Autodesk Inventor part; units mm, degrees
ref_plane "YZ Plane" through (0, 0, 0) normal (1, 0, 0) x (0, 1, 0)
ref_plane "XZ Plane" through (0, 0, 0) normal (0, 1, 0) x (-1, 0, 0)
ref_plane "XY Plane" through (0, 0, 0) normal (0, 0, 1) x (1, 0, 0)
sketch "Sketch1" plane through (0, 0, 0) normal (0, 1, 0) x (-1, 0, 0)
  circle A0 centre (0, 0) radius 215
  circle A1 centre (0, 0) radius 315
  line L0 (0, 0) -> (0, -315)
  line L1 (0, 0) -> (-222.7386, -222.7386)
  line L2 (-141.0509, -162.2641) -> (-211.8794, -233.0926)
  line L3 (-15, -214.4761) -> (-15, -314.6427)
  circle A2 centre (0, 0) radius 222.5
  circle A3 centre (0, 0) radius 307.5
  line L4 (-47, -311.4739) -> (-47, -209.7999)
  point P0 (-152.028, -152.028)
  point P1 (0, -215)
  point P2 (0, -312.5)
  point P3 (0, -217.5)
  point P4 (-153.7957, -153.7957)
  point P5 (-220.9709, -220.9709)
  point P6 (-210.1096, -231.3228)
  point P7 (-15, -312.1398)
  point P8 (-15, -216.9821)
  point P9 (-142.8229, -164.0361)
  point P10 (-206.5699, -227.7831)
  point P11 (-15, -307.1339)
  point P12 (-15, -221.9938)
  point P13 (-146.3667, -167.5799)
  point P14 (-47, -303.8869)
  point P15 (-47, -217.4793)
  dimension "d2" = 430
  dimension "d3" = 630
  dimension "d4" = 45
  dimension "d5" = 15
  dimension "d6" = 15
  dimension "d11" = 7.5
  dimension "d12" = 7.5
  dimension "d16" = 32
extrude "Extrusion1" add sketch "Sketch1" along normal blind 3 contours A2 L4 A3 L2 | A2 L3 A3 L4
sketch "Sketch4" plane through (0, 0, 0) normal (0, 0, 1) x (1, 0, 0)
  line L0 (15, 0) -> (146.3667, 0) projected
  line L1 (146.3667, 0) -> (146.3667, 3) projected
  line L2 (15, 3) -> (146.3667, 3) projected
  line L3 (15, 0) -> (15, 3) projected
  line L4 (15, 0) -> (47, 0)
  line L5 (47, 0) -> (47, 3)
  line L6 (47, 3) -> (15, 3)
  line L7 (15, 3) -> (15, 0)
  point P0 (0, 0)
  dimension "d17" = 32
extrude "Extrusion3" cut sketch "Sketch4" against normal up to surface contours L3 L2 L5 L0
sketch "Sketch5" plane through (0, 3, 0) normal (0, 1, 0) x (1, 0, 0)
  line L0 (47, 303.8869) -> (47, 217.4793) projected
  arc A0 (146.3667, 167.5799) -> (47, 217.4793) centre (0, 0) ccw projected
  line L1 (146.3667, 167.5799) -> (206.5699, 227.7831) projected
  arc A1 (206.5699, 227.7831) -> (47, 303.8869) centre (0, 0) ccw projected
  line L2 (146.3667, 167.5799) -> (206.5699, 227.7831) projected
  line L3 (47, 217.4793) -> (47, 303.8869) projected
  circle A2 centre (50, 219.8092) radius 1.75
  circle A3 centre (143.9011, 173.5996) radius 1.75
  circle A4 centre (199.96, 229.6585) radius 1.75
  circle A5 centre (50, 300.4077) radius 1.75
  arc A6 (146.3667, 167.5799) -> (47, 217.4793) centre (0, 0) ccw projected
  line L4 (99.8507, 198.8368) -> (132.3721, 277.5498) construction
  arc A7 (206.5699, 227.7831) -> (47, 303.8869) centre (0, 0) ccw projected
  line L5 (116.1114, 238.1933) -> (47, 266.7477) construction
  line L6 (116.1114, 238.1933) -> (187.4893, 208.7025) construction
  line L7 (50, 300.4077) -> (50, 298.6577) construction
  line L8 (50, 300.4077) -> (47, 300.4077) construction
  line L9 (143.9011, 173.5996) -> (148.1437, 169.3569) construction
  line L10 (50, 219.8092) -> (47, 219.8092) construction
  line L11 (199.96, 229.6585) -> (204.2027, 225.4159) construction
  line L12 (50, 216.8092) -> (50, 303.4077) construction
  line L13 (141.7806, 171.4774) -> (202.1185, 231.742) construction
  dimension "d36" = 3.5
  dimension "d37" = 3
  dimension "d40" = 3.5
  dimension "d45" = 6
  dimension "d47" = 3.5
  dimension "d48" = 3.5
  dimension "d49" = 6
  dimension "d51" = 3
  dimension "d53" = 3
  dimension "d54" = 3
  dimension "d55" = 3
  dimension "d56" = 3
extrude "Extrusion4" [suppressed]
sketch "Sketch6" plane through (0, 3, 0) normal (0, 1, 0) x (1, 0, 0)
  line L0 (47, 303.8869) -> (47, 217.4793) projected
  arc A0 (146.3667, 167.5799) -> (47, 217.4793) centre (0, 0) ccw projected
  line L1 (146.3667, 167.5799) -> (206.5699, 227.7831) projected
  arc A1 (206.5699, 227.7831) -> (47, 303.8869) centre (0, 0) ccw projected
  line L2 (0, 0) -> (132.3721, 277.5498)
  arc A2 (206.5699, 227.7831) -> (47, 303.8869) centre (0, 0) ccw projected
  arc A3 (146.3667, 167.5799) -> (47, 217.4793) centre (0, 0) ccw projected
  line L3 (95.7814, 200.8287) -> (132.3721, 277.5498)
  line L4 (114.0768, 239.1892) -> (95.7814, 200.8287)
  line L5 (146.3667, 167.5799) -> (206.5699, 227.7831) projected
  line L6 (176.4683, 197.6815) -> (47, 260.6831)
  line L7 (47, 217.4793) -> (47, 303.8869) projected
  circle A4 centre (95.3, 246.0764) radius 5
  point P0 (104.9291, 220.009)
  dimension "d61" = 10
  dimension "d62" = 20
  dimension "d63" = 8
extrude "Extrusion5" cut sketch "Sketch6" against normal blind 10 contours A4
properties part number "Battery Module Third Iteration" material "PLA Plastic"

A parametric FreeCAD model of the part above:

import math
import FreeCAD as App
import Part
import Sketcher

V = App.Vector
Q = App.Units.Quantity


def add_polygon(sketch, points):
    """Adds a closed chain of lines whose ends are joined by coincident constraints."""
    first, n = sketch.GeometryCount, len(points)
    for a, b in zip(points, points[1:] + points[:1]):
        sketch.addGeometry(Part.LineSegment(App.Vector(*a, 0), App.Vector(*b, 0)), False)
    for i in range(n):
        sketch.addConstraint(Sketcher.Constraint("Coincident", first + i, 2, first + (i + 1) % n, 1))

doc = App.newDocument("Part")
body = doc.addObject("PartDesign::Body", "Body")

sketch1 = body.newObject("Sketcher::SketchObject", "Sketch")
sketch1.AttachmentSupport = (doc.getObject("XZ_Plane"), [""])
sketch1.MapMode = "FlatFace"
sketch1.addGeometry(Part.LineSegment(V(146, -168, 0), V(207, -228, 0)), False)
sketch1.addGeometry(Part.ArcOfCircle(Part.Circle(V(0, 0, 0), V(0, 0, 1), 308), math.radians(-87), math.radians(-48)), False)
sketch1.addGeometry(Part.LineSegment(V(15, -307, 0), V(15, -222, 0)), False)
sketch1.addGeometry(Part.ArcOfCircle(Part.Circle(V(0, 0, 0), V(0, 0, 1), 222), math.radians(-86), math.radians(-49)), False)
sketch1.addConstraint(Sketcher.Constraint("Coincident", 0, 2, 1, 2))
sketch1.addConstraint(Sketcher.Constraint("Coincident", 1, 1, 2, 1))
sketch1.addConstraint(Sketcher.Constraint("Coincident", 2, 2, 3, 1))
sketch1.addConstraint(Sketcher.Constraint("Coincident", 3, 2, 0, 1))
sketch1.addConstraint(Sketcher.Constraint("Vertical", 2))
sketch1.addConstraint(Sketcher.Constraint("Coincident", 1, 3, -1, 1))
sketch1.addConstraint(Sketcher.Constraint("Coincident", 3, 3, -1, 1))
sketch1.addConstraint(Sketcher.Constraint("Angle", 0, Q("-45 deg")))
sketch1.addConstraint(Sketcher.Constraint("DistanceX", -1, 1, 1, 1, Q("15 mm")))
sketch1.addConstraint(Sketcher.Constraint("Radius", 1, Q("307.5 mm")))
sketch1.addConstraint(Sketcher.Constraint("Radius", 3, Q("222.5 mm")))
sketch1.addConstraint(Sketcher.Constraint("DistanceX", -1, 1, 0, 2, Q("206.57 mm")))
pad1 = body.newObject("PartDesign::Pad", "Pad")
pad1.Profile = sketch1
pad1.Length = 3
pad1.Reversed = True

sketch2 = body.newObject("Sketcher::SketchObject", "Sketch001")
sketch2.AttachmentSupport = (doc.getObject("XY_Plane"), [""])
sketch2.MapMode = "FlatFace"
add_polygon(sketch2, [(15, 3), (15, 0), (47, 0), (47, 3)])
sketch2.addConstraint(Sketcher.Constraint("Vertical", 0))
sketch2.addConstraint(Sketcher.Constraint("Horizontal", 1))
sketch2.addConstraint(Sketcher.Constraint("Vertical", 2))
sketch2.addConstraint(Sketcher.Constraint("Horizontal", 3))
sketch2.addConstraint(Sketcher.Constraint("PointOnObject", 0, 2, -1))
sketch2.addConstraint(Sketcher.Constraint("DistanceX", 1, 1, 1, 2, Q("32 mm")))
sketch2.addConstraint(Sketcher.Constraint("DistanceY", 0, 2, 0, 1, Q("3 mm")))
sketch2.addConstraint(Sketcher.Constraint("DistanceX", -1, 1, 0, 2, Q("15 mm")))
pocket1 = body.newObject("PartDesign::Pocket", "Pocket")
pocket1.Profile = sketch2
pocket1.Length = 307.1339

sketch3 = body.newObject("Sketcher::SketchObject", "Sketch002")
sketch3.AttachmentSupport = (doc.getObject("XZ_Plane"), [""])
sketch3.MapMode = "FlatFace"
sketch3.AttachmentOffset = App.Placement(V(0, 0, -3), App.Rotation())
sketch3.addGeometry(Part.Circle(V(95, -246, 0), V(0, 0, 1), 5), False)
sketch3.addConstraint(Sketcher.Constraint("Diameter", 0, Q("10 mm")))
sketch3.addConstraint(Sketcher.Constraint("DistanceX", -1, 1, 0, 3, Q("95.3 mm")))
sketch3.addConstraint(Sketcher.Constraint("DistanceY", 0, 3, -1, 1, Q("246.0764 mm")))
pocket2 = body.newObject("PartDesign::Pocket", "Pocket001")
pocket2.Profile = sketch3
pocket2.Length = 10
pocket2.Reversed = True

doc.recompute()
